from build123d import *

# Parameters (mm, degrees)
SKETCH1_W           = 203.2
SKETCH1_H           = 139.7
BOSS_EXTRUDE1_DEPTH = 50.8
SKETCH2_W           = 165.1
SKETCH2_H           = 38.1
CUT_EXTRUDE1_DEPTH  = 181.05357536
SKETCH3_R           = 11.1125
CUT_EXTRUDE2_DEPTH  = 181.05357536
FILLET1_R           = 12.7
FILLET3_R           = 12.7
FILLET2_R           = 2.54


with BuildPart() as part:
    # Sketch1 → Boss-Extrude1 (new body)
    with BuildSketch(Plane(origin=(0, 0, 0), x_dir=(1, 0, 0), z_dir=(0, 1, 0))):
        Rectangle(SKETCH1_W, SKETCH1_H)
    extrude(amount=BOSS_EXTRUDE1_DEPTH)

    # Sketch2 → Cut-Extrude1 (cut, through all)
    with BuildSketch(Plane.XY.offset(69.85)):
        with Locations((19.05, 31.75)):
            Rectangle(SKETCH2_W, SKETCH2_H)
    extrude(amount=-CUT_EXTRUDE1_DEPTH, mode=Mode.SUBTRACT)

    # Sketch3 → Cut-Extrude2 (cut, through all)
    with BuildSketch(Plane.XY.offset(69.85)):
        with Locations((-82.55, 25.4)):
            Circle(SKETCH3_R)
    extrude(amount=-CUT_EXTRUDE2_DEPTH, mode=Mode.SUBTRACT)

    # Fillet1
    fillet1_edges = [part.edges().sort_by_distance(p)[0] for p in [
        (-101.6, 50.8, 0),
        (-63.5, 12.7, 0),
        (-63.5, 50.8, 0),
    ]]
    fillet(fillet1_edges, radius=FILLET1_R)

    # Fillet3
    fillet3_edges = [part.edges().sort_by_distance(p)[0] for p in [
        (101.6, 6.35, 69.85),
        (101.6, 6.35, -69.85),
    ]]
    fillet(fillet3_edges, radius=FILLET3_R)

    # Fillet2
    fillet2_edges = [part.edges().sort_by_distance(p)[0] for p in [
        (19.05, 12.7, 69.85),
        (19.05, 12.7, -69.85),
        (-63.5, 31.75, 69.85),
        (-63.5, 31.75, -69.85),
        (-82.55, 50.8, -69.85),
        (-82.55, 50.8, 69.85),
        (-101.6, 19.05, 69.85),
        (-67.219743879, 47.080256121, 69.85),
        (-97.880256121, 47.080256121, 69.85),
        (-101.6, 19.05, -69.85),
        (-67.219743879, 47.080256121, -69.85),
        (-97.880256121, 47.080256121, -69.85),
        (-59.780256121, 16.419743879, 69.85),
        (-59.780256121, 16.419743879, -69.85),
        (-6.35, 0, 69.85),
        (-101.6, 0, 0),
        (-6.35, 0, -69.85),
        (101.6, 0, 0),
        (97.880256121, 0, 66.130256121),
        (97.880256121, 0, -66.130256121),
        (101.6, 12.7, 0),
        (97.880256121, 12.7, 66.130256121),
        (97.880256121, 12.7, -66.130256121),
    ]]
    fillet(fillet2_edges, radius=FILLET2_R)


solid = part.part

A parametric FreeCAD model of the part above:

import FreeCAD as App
import Part
import Sketcher
Q = App.Units.Quantity


def edges_at(feature, points):
    """Names of the edges that pass closest to the given points."""
    edges = feature.Shape.Edges
    near = lambda p: min(range(len(edges)), key=lambda i: edges[i].distToShape(Part.Vertex(*p))[0])
    return sorted({f"Edge{near(p) + 1}" for p in points})

doc = App.newDocument("Part")
body = doc.addObject("PartDesign::Body", "Body")

# Sketch on XZ plane
sketch1 = doc.addObject("Sketcher::SketchObject", "Sketch")
body.addObject(sketch1)
sketch1.AttachmentSupport = (doc.XZ_Plane, [""])
sketch1.MapMode = "FlatFace"
sketch1.addGeometry(Part.LineSegment(App.Vector(-102, -70, 0), App.Vector(-102, 70, 0)), False)
sketch1.addGeometry(Part.LineSegment(App.Vector(-102, 70, 0), App.Vector(102, 70, 0)), False)
sketch1.addGeometry(Part.LineSegment(App.Vector(102, 70, 0), App.Vector(102, -70, 0)), False)
sketch1.addGeometry(Part.LineSegment(App.Vector(102, -70, 0), App.Vector(-102, -70, 0)), False)
sketch1.addConstraint(Sketcher.Constraint("Coincident", 0, 2, 1, 1))
sketch1.addConstraint(Sketcher.Constraint("Coincident", 1, 2, 2, 1))
sketch1.addConstraint(Sketcher.Constraint("Coincident", 2, 2, 3, 1))
sketch1.addConstraint(Sketcher.Constraint("Coincident", 3, 2, 0, 1))
sketch1.addConstraint(Sketcher.Constraint("Vertical", 0))
sketch1.addConstraint(Sketcher.Constraint("Horizontal", 1))
sketch1.addConstraint(Sketcher.Constraint("Vertical", 2))
sketch1.addConstraint(Sketcher.Constraint("Horizontal", 3))
sketch1.addConstraint(Sketcher.Constraint("Symmetric", 0, 2, 2, 2, -1, 1))
sketch1.addConstraint(Sketcher.Constraint("DistanceX", 1, 1, 1, 2, Q("8 in")))
sketch1.addConstraint(Sketcher.Constraint("DistanceY", 0, 1, 0, 2, Q("5.5 in")))
pad1 = doc.addObject("PartDesign::Pad", "Pad")
body.addObject(pad1)
pad1.Profile = sketch1
pad1.Length = Q("2 in")
pad1.Reversed = True

# Sketch on XY plane
sketch2 = doc.addObject("Sketcher::SketchObject", "Sketch001")
body.addObject(sketch2)
sketch2.AttachmentSupport = (doc.XY_Plane, [""])
sketch2.MapMode = "FlatFace"
sketch2.AttachmentOffset = App.Placement(App.Vector(0, 0, 2.75 * 25.4), App.Rotation())
sketch2.addGeometry(Part.LineSegment(App.Vector(-64, 51, 0), App.Vector(-64, 13, 0)), False)
sketch2.addGeometry(Part.LineSegment(App.Vector(-64, 13, 0), App.Vector(102, 13, 0)), False)
sketch2.addGeometry(Part.LineSegment(App.Vector(102, 13, 0), App.Vector(102, 51, 0)), False)
sketch2.addGeometry(Part.LineSegment(App.Vector(102, 51, 0), App.Vector(-64, 51, 0)), False)
sketch2.addConstraint(Sketcher.Constraint("Coincident", 0, 2, 1, 1))
sketch2.addConstraint(Sketcher.Constraint("Coincident", 1, 2, 2, 1))
sketch2.addConstraint(Sketcher.Constraint("Coincident", 2, 2, 3, 1))
sketch2.addConstraint(Sketcher.Constraint("Coincident", 3, 2, 0, 1))
sketch2.addConstraint(Sketcher.Constraint("Vertical", 0))
sketch2.addConstraint(Sketcher.Constraint("Horizontal", 1))
sketch2.addConstraint(Sketcher.Constraint("Vertical", 2))
sketch2.addConstraint(Sketcher.Constraint("Horizontal", 3))
sketch2.addConstraint(Sketcher.Constraint("DistanceX", 1, 1, 1, 2, Q("6.5 in")))
sketch2.addConstraint(Sketcher.Constraint("DistanceY", 0, 2, 0, 1, Q("1.5 in")))
sketch2.addConstraint(Sketcher.Constraint("DistanceX", -1, 1, 1, 2, Q("4 in")))
sketch2.addConstraint(Sketcher.Constraint("DistanceY", -1, 1, 2, 2, Q("2 in")))
pocket1 = doc.addObject("PartDesign::Pocket", "Pocket")
body.addObject(pocket1)
pocket1.Profile = sketch2
pocket1.Type = "ThroughAll"

# Sketch on XY plane
sketch3 = doc.addObject("Sketcher::SketchObject", "Sketch002")
body.addObject(sketch3)
sketch3.AttachmentSupport = (doc.XY_Plane, [""])
sketch3.MapMode = "FlatFace"
sketch3.AttachmentOffset = App.Placement(App.Vector(0, 0, 2.75 * 25.4), App.Rotation())
sketch3.addGeometry(Part.Circle(App.Vector(-83, 25, 0), App.Vector(0, 0, 1), 11), False)
sketch3.addConstraint(Sketcher.Constraint("Diameter", 0, Q("0.875 in")))
sketch3.addConstraint(Sketcher.Constraint("DistanceY", -1, 1, 0, 3, Q("1 in")))
sketch3.addConstraint(Sketcher.Constraint("DistanceX", 0, 3, -1, 1, Q("3.25 in")))
pocket2 = doc.addObject("PartDesign::Pocket", "Pocket001")
body.addObject(pocket2)
pocket2.Profile = sketch3
pocket2.Type = "ThroughAll"
doc.recompute()

fillet = doc.addObject("PartDesign::Fillet", "Fillet")
body.addObject(fillet)
fillet.Base = (pocket2, edges_at(pocket2, [(-101.6, 50.8, 0), (-63.5, 12.7, 0), (-63.5, 50.8, 0)]))
fillet.Radius = Q("0.5 in")
doc.recompute()

fillet2 = doc.addObject("PartDesign::Fillet", "Fillet001")
body.addObject(fillet2)
fillet2.Base = (fillet, edges_at(fillet, [(101.6, 6.35, 69.85), (101.6, 6.35, -69.85)]))
fillet2.Radius = Q("0.5 in")
doc.recompute()

fillet3 = doc.addObject("PartDesign::Fillet", "Fillet002")
body.addObject(fillet3)
fillet3.Base = (fillet2, edges_at(fillet2, [
    (19.05, 12.7, 69.85),
    (19.05, 12.7, -69.85),
    (-63.5, 31.75, 69.85),
    (-63.5, 31.75, -69.85),
    (-82.55, 50.8, -69.85),
    (-82.55, 50.8, 69.85),
    (-101.6, 19.05, 69.85),
    (-67.22, 47.08, 69.85),
    (-97.88, 47.08, 69.85),
    (-101.6, 19.05, -69.85),
    (-67.22, 47.08, -69.85),
    (-97.88, 47.08, -69.85),
    (-59.78, 16.42, 69.85),
    (-59.78, 16.42, -69.85),
    (-6.35, 0, 69.85),
    (-101.6, 0, 0),
    (-6.35, 0, -69.85),
    (101.6, 0, 0),
    (97.88, 0, 66.13),
    (97.88, 0, -66.13),
    (101.6, 12.7, 0),
    (97.88, 12.7, 66.13),
    (97.88, 12.7, -66.13),
]))
fillet3.Radius = Q("0.1 in")

doc.recompute()
